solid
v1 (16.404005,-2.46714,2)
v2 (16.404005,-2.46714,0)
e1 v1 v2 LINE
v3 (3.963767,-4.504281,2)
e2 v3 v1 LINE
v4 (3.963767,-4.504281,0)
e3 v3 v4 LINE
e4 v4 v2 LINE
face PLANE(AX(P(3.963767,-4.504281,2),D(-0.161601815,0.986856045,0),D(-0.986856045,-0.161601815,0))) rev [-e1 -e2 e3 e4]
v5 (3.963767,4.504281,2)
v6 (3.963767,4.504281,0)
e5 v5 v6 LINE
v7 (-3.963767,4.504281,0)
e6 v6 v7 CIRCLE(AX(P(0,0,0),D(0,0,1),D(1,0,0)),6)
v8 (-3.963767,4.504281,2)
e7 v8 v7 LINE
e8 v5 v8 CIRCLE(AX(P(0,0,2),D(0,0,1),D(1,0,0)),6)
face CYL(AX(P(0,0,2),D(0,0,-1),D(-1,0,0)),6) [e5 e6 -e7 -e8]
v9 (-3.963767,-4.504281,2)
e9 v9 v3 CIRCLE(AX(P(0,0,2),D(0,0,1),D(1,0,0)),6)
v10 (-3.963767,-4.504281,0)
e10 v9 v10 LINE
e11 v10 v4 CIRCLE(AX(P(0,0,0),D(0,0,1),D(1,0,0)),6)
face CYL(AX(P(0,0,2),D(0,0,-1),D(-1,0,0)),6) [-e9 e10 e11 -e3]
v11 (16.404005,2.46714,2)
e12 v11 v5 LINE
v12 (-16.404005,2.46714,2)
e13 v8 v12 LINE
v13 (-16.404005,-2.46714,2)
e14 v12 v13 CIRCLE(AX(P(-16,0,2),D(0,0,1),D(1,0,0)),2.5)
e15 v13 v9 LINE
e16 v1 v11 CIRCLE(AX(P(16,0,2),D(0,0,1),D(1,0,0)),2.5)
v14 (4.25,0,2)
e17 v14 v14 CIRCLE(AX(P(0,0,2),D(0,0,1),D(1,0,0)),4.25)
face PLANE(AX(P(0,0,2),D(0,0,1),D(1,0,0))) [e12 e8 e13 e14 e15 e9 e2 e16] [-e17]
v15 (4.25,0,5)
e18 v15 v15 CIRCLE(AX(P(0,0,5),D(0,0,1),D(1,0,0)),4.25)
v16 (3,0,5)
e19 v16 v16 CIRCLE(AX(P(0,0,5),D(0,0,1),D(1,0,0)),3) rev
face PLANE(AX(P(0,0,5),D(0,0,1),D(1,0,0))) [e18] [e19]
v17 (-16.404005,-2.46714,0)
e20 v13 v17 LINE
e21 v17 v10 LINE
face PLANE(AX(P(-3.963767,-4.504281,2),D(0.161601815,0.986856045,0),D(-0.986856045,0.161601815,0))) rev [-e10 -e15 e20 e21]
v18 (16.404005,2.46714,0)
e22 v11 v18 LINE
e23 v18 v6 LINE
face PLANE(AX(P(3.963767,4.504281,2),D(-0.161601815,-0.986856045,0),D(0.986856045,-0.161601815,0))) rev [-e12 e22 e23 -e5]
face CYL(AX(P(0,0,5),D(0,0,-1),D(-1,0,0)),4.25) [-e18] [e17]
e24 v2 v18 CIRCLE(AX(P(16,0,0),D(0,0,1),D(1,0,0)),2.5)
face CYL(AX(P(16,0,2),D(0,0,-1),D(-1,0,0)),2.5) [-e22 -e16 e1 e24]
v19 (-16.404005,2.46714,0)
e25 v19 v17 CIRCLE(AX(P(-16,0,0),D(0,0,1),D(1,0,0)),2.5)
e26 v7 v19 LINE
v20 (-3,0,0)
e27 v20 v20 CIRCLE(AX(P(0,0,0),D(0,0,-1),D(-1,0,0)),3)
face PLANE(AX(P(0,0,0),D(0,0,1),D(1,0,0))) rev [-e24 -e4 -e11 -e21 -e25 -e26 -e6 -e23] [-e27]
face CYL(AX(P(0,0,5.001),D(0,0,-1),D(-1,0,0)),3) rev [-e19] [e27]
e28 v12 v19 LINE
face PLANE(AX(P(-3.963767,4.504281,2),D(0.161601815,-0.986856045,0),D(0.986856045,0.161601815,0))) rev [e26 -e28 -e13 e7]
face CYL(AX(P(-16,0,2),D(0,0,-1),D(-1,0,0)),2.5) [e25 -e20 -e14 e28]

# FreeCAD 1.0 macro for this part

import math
import FreeCAD as App
import Part
import Sketcher
from FreeCAD import Vector
Q = App.Units.Quantity

doc = App.newDocument("Part")
body = doc.addObject("PartDesign::Body", "Body")

sketch1 = body.newObject("Sketcher::SketchObject", "Sketch")
sketch1.AttachmentSupport = (doc.getObject("XY_Plane"), [""])
sketch1.MapMode = "FlatFace"
sketch1.addGeometry([
    Part.LineSegment(Vector(-4, 4.5, 0), Vector(-16.4, 2.5, 0)),
    Part.ArcOfCircle(Part.Circle(Vector(-16, 0, 0), Vector(0, 0, 1), 2.5), math.radians(99), math.radians(261)),
    Part.LineSegment(Vector(-16.4, -2.5, 0), Vector(-4, -4.5, 0)),
    Part.ArcOfCircle(Part.Circle(Vector(0, 0, 0), Vector(0, 0, 1), 6), math.radians(-131), math.radians(-49)),
    Part.LineSegment(Vector(4, -4.5, 0), Vector(16.4, -2.5, 0)),
    Part.ArcOfCircle(Part.Circle(Vector(16, 0, 0), Vector(0, 0, 1), 2.5), math.radians(-81), math.radians(81)),
    Part.LineSegment(Vector(16.4, 2.5, 0), Vector(4, 4.5, 0)),
    Part.ArcOfCircle(Part.Circle(Vector(0, 0, 0), Vector(0, 0, 1), 6), math.radians(49), math.radians(131)),
], False)
sketch1.addConstraint([
    Sketcher.Constraint("Tangent", 0, 2, 1, 1),
    Sketcher.Constraint("Tangent", 1, 2, 2, 1),
    Sketcher.Constraint("Coincident", 2, 2, 3, 1),
    Sketcher.Constraint("Coincident", 3, 2, 4, 1),
    Sketcher.Constraint("Tangent", 4, 2, 5, 1),
    Sketcher.Constraint("Tangent", 5, 2, 6, 1),
    Sketcher.Constraint("Coincident", 6, 2, 7, 1),
    Sketcher.Constraint("Coincident", 7, 2, 0, 1),
    Sketcher.Constraint("Coincident", 3, 3, -1, 1),
    Sketcher.Constraint("Coincident", 7, 3, -1, 1),
    Sketcher.Constraint("Equal", 1, 5),
    Sketcher.Constraint("Equal", 3, 7),
    Sketcher.Constraint("Symmetric", 1, 3, 5, 3, -1, 1),
    Sketcher.Constraint("Symmetric", 1, 2, 4, 2, -2),
    Sketcher.Constraint("Parallel", 0, 4),
    Sketcher.Constraint("Parallel", 2, 6),
    Sketcher.Constraint("Radius", 3, Q("6 mm")),
    Sketcher.Constraint("Radius", 1, Q("2.5 mm")),
    Sketcher.Constraint("DistanceX", 1, 3, -1, 1, Q("16 mm")),
    Sketcher.Constraint("Distance", 0, Q("12.605929 mm")),
])
pad1 = body.newObject("PartDesign::Pad", "Pad")
pad1.Profile = sketch1
pad1.Length = 2

sketch2 = body.newObject("Sketcher::SketchObject", "Sketch001")
sketch2.AttachmentSupport = (doc.getObject("XY_Plane"), [""])
sketch2.MapMode = "FlatFace"
sketch2.AttachmentOffset = App.Placement(Vector(0, 0, 2), App.Rotation())
sketch2.addGeometry(Part.Circle(Vector(0, 0, 0), Vector(0, 0, 1), 4.2), False)
sketch2.addConstraint([
    Sketcher.Constraint("Coincident", 0, 3, -1, 1),
    Sketcher.Constraint("Diameter", 0, Q("8.5 mm")),
])
pad2 = body.newObject("PartDesign::Pad", "Pad001")
pad2.Profile = sketch2
pad2.Length = 3

sketch3 = body.newObject("Sketcher::SketchObject", "Sketch002")
sketch3.AttachmentSupport = (doc.getObject("XY_Plane"), [""])
sketch3.MapMode = "FlatFace"
sketch3.addGeometry(Part.Circle(Vector(0, 0, 0), Vector(0, 0, 1), 3), False)
sketch3.addConstraint([
    Sketcher.Constraint("Coincident", 0, 3, -1, 1),
    Sketcher.Constraint("Diameter", 0, Q("6 mm")),
])
pocket1 = body.newObject("PartDesign::Pocket", "Pocket")
pocket1.Profile = sketch3
pocket1.Type = "UpToFirst"
pocket1.Reversed = True

doc.recompute()
